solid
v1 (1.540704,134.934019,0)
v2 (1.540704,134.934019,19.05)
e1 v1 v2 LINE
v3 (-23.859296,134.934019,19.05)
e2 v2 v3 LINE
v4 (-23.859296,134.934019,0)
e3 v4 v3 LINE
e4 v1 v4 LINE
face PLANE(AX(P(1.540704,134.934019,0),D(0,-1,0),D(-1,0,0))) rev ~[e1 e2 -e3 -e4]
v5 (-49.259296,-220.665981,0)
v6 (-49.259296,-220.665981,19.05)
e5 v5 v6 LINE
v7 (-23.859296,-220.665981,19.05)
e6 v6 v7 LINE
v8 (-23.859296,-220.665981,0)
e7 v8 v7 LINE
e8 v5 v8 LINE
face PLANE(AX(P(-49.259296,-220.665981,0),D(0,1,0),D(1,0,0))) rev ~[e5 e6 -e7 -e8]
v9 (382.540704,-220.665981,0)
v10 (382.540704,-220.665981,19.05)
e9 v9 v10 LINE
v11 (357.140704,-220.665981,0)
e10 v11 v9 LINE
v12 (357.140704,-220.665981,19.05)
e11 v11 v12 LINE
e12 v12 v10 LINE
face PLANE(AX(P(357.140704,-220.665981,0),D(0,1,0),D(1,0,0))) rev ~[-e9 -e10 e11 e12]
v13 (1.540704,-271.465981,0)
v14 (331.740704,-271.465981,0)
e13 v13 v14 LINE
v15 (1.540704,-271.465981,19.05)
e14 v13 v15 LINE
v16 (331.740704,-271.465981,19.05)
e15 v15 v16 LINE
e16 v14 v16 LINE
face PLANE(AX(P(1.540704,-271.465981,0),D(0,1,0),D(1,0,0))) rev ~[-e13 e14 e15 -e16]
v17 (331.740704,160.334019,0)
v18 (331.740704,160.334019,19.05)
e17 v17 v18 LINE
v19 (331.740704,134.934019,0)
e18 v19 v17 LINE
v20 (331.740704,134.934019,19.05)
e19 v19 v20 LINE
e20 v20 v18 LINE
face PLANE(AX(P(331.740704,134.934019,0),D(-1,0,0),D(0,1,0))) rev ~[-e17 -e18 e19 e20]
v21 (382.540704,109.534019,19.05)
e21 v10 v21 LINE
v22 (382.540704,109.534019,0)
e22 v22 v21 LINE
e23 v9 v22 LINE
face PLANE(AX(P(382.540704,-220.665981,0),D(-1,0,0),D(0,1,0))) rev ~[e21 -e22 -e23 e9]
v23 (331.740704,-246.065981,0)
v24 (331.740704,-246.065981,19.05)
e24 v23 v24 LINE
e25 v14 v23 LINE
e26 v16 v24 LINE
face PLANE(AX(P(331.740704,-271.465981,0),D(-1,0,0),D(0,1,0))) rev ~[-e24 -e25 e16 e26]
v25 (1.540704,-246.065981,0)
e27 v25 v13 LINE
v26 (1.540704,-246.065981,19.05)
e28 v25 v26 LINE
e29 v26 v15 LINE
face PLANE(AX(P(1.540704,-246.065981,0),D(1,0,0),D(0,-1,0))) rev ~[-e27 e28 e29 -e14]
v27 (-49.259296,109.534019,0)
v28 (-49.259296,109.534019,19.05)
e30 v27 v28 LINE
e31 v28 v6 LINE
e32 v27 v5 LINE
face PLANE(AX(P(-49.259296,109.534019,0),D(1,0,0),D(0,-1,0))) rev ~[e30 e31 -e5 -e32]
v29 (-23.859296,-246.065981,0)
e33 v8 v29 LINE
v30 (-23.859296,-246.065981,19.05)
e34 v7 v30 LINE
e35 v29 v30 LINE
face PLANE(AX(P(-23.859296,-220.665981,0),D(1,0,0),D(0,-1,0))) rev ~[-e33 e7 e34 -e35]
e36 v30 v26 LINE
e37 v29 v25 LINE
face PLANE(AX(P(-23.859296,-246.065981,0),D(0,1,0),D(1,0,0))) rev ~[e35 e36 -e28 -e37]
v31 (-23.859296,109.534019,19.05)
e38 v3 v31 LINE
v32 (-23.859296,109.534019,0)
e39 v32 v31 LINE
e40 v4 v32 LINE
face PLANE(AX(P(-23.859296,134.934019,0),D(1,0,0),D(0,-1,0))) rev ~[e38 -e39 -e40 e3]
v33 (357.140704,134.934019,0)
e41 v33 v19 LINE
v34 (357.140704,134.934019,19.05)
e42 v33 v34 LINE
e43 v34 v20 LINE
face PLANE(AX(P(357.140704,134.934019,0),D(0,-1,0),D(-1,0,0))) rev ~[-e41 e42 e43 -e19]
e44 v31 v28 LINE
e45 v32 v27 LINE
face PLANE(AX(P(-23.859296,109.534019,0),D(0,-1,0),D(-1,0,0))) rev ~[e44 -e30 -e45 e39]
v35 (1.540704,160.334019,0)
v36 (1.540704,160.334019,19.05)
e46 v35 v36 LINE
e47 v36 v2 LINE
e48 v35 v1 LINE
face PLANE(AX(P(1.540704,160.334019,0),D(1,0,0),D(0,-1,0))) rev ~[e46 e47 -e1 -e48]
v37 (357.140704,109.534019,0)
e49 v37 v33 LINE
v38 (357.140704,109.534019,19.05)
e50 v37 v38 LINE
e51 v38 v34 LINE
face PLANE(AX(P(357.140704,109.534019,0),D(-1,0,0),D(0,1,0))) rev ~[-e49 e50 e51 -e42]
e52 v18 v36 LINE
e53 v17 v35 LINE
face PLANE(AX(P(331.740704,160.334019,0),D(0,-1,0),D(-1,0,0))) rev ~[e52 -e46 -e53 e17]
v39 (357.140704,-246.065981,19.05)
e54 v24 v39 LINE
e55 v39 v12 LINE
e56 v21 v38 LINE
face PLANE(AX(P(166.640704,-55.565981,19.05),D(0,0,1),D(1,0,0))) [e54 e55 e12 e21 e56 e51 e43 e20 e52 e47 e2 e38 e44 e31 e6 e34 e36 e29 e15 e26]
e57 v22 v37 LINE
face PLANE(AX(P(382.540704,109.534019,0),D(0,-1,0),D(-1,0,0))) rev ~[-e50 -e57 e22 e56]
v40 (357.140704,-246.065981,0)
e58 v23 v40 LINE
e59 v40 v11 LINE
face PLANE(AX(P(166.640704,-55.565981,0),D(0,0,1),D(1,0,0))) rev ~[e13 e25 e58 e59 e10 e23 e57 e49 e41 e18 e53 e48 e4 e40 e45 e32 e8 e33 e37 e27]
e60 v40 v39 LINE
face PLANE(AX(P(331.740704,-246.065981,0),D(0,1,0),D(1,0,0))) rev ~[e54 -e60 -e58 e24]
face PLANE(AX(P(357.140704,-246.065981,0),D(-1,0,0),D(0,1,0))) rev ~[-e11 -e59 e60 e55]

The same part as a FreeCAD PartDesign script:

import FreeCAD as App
import Part
import Sketcher
Q = App.Units.Quantity

doc = App.newDocument("Part")
params = doc.addObject("Spreadsheet::Sheet", "Params")
for row, (alias, value) in enumerate([
    ("sketch1_width", "1 in"),
    ("sketch1_width2", "13 in"),
    ("pad1_length", "0.75 in"),
], start=1):
    params.set(f"A{row}", alias)
    params.set(f"B{row}", "=" + value)
    params.setAlias(f"B{row}", alias)

body = doc.addObject("PartDesign::Body", "Body")

# Sketch on XY plane
sketch1 = body.newObject("Sketcher::SketchObject", "Sketch")
sketch1.AttachmentSupport = (doc.getObject("XY_Plane"), [""])
sketch1.MapMode = "FlatFace"
sketch1.addGeometry(Part.LineSegment(App.Vector(-23.859296, 109.534019, 0), App.Vector(-49.259296, 109.534019, 0)), False)
sketch1.addGeometry(Part.LineSegment(App.Vector(-49.259296, 109.534019, 0), App.Vector(-49.259296, -220.665981, 0)), False)
sketch1.addGeometry(Part.LineSegment(App.Vector(-49.259296, -220.665981, 0), App.Vector(-23.859296, -220.665981, 0)), False)
sketch1.addGeometry(Part.LineSegment(App.Vector(-23.859296, -220.665981, 0), App.Vector(-23.859296, -246.065981, 0)), False)
sketch1.addGeometry(Part.LineSegment(App.Vector(-23.859296, -246.065981, 0), App.Vector(1.540704, -246.065981, 0)), False)
sketch1.addGeometry(Part.LineSegment(App.Vector(1.540704, -246.065981, 0), App.Vector(1.540704, -271.465981, 0)), False)
sketch1.addGeometry(Part.LineSegment(App.Vector(1.540704, -271.465981, 0), App.Vector(331.740704, -271.465981, 0)), False)
sketch1.addGeometry(Part.LineSegment(App.Vector(331.740704, -271.465981, 0), App.Vector(331.740704, -246.065981, 0)), False)
sketch1.addGeometry(Part.LineSegment(App.Vector(331.740704, -246.065981, 0), App.Vector(357.140704, -246.065981, 0)), False)
sketch1.addGeometry(Part.LineSegment(App.Vector(357.140704, -246.065981, 0), App.Vector(357.140704, -220.665981, 0)), False)
sketch1.addGeometry(Part.LineSegment(App.Vector(357.140704, -220.665981, 0), App.Vector(382.540704, -220.665981, 0)), False)
sketch1.addGeometry(Part.LineSegment(App.Vector(382.540704, -220.665981, 0), App.Vector(382.540704, 109.534019, 0)), False)
sketch1.addGeometry(Part.LineSegment(App.Vector(382.540704, 109.534019, 0), App.Vector(357.140704, 109.534019, 0)), False)
sketch1.addGeometry(Part.LineSegment(App.Vector(357.140704, 109.534019, 0), App.Vector(357.140704, 134.934019, 0)), False)
sketch1.addGeometry(Part.LineSegment(App.Vector(357.140704, 134.934019, 0), App.Vector(331.740704, 134.934019, 0)), False)
sketch1.addGeometry(Part.LineSegment(App.Vector(331.740704, 134.934019, 0), App.Vector(331.740704, 160.334019, 0)), False)
sketch1.addGeometry(Part.LineSegment(App.Vector(331.740704, 160.334019, 0), App.Vector(1.540704, 160.334019, 0)), False)
sketch1.addGeometry(Part.LineSegment(App.Vector(1.540704, 160.334019, 0), App.Vector(1.540704, 134.934019, 0)), False)
sketch1.addGeometry(Part.LineSegment(App.Vector(1.540704, 134.934019, 0), App.Vector(-23.859296, 134.934019, 0)), False)
sketch1.addGeometry(Part.LineSegment(App.Vector(-23.859296, 134.934019, 0), App.Vector(-23.859296, 109.534019, 0)), False)
sketch1.addConstraint(Sketcher.Constraint("Coincident", 0, 2, 1, 1))
sketch1.addConstraint(Sketcher.Constraint("Coincident", 1, 2, 2, 1))
sketch1.addConstraint(Sketcher.Constraint("Coincident", 2, 2, 3, 1))
sketch1.addConstraint(Sketcher.Constraint("Coincident", 3, 2, 4, 1))
sketch1.addConstraint(Sketcher.Constraint("Coincident", 4, 2, 5, 1))
sketch1.addConstraint(Sketcher.Constraint("Coincident", 5, 2, 6, 1))
sketch1.addConstraint(Sketcher.Constraint("Coincident", 6, 2, 7, 1))
sketch1.addConstraint(Sketcher.Constraint("Coincident", 7, 2, 8, 1))
sketch1.addConstraint(Sketcher.Constraint("Coincident", 8, 2, 9, 1))
sketch1.addConstraint(Sketcher.Constraint("Coincident", 9, 2, 10, 1))
sketch1.addConstraint(Sketcher.Constraint("Coincident", 10, 2, 11, 1))
sketch1.addConstraint(Sketcher.Constraint("Coincident", 11, 2, 12, 1))
sketch1.addConstraint(Sketcher.Constraint("Coincident", 12, 2, 13, 1))
sketch1.addConstraint(Sketcher.Constraint("Coincident", 13, 2, 14, 1))
sketch1.addConstraint(Sketcher.Constraint("Coincident", 14, 2, 15, 1))
sketch1.addConstraint(Sketcher.Constraint("Coincident", 15, 2, 16, 1))
sketch1.addConstraint(Sketcher.Constraint("Coincident", 16, 2, 17, 1))
sketch1.addConstraint(Sketcher.Constraint("Coincident", 17, 2, 18, 1))
sketch1.addConstraint(Sketcher.Constraint("Coincident", 18, 2, 19, 1))
sketch1.addConstraint(Sketcher.Constraint("Coincident", 19, 2, 0, 1))
sketch1.addConstraint(Sketcher.Constraint("Horizontal", 0))
sketch1.addConstraint(Sketcher.Constraint("Vertical", 1))
sketch1.addConstraint(Sketcher.Constraint("Horizontal", 2))
sketch1.addConstraint(Sketcher.Constraint("Vertical", 3))
sketch1.addConstraint(Sketcher.Constraint("Horizontal", 4))
sketch1.addConstraint(Sketcher.Constraint("Vertical", 5))
sketch1.addConstraint(Sketcher.Constraint("Horizontal", 6))
sketch1.addConstraint(Sketcher.Constraint("Vertical", 7))
sketch1.addConstraint(Sketcher.Constraint("Horizontal", 8))
sketch1.addConstraint(Sketcher.Constraint("Vertical", 9))
sketch1.addConstraint(Sketcher.Constraint("Horizontal", 10))
sketch1.addConstraint(Sketcher.Constraint("Vertical", 11))
sketch1.addConstraint(Sketcher.Constraint("Horizontal", 12))
sketch1.addConstraint(Sketcher.Constraint("Vertical", 13))
sketch1.addConstraint(Sketcher.Constraint("Horizontal", 14))
sketch1.addConstraint(Sketcher.Constraint("Vertical", 15))
sketch1.addConstraint(Sketcher.Constraint("Horizontal", 16))
sketch1.addConstraint(Sketcher.Constraint("Vertical", 17))
sketch1.addConstraint(Sketcher.Constraint("Horizontal", 18))
sketch1.addConstraint(Sketcher.Constraint("Vertical", 19))
sketch1.addConstraint(Sketcher.Constraint("Horizontal", 4, 2, 7, 2))
sketch1.addConstraint(Sketcher.Constraint("Horizontal", 2, 2, 9, 2))
sketch1.addConstraint(Sketcher.Constraint("Horizontal", 0, 2, 11, 2))
sketch1.addConstraint(Sketcher.Constraint("Horizontal", 14, 2, 17, 2))
sketch1.addConstraint(Sketcher.Constraint("Vertical", 9, 2, 12, 2))
sketch1.addConstraint(Sketcher.Constraint("Vertical", 7, 2, 14, 2))
sketch1.addConstraint(Sketcher.Constraint("Vertical", 5, 2, 16, 2))
sketch1.addConstraint(Sketcher.Constraint("Vertical", 3, 2, 18, 2))
sketch1.addConstraint(Sketcher.Constraint("Equal", 2, 4))
sketch1.addConstraint(Sketcher.Constraint("Equal", 4, 8))
sketch1.addConstraint(Sketcher.Constraint("Equal", 8, 10))
sketch1.addConstraint(Sketcher.Constraint("Equal", 16, 1))
sketch1.addConstraint(Sketcher.Constraint("Equal", 18, 3))
sketch1.addConstraint(Sketcher.Constraint("Equal", 3, 5))
sketch1.addConstraint(Sketcher.Constraint("Equal", 9, 13))
sketch1.addConstraint(Sketcher.Constraint("Equal", 13, 15))
sketch1.addConstraint(Sketcher.Constraint("DistanceX", 0, 2, 0, 1, Q("1 in")))
sketch1.addConstraint(Sketcher.Constraint("DistanceX", 6, 1, 6, 2, Q("13 in")))
sketch1.addConstraint(Sketcher.Constraint("DistanceY", -1, 1, 0, 2, 109.534019))
sketch1.addConstraint(Sketcher.Constraint("DistanceX", 0, 2, -1, 1, 49.259296))
sketch1.setExpression("Constraints[56]", "Params.sketch1_width")
sketch1.setExpression("Constraints[57]", "Params.sketch1_width2")
pad1 = body.newObject("PartDesign::Pad", "Pad")
pad1.Profile = sketch1
pad1.setExpression("Length", "Params.pad1_length")

doc.recompute()
